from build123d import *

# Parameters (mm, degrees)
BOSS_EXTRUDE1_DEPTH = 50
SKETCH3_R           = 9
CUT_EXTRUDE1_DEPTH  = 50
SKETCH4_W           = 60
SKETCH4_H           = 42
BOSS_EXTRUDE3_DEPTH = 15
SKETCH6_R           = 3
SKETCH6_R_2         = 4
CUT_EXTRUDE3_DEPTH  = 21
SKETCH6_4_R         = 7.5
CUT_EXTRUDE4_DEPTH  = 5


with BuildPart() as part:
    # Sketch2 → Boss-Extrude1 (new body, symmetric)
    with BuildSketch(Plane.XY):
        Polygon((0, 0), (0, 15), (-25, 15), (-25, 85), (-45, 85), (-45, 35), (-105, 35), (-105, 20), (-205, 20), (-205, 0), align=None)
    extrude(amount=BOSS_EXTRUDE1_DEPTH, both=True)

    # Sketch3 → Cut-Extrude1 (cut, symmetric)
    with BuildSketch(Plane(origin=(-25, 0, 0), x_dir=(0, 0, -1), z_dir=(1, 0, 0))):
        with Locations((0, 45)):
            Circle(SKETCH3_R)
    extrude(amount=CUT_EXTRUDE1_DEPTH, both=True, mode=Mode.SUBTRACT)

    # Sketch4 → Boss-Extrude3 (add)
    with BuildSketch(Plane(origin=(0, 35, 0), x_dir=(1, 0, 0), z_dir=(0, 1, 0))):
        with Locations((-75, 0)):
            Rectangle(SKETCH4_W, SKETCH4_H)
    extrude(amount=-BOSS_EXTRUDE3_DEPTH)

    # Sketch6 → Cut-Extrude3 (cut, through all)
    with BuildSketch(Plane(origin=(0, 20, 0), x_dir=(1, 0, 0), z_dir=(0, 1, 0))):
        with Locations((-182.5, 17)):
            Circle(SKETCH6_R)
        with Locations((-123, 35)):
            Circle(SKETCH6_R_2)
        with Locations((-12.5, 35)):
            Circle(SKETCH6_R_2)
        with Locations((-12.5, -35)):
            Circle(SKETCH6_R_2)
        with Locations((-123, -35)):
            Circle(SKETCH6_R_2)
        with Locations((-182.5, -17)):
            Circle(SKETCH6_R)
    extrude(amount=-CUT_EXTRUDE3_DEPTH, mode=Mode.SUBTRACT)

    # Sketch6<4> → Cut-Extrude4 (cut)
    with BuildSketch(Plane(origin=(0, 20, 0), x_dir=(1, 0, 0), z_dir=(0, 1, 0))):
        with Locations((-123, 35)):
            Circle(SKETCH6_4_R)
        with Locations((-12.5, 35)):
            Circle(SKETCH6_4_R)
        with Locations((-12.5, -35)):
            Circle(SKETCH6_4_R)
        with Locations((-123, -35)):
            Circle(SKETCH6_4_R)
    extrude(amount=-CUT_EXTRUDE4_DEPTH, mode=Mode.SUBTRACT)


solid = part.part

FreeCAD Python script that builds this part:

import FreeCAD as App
import Part
import Sketcher

V = App.Vector
Q = App.Units.Quantity

doc = App.newDocument("Part")
body = doc.addObject("PartDesign::Body", "Body")

sketch1 = body.newObject("Sketcher::SketchObject", "Sketch")
sketch1.AttachmentSupport = (doc.getObject("XY_Plane"), [""])
sketch1.MapMode = "FlatFace"
sketch1.addGeometry(Part.LineSegment(V(0, 0, 0), V(0, 15, 0)), False)
sketch1.addGeometry(Part.LineSegment(V(0, 15, 0), V(-25, 15, 0)), False)
sketch1.addGeometry(Part.LineSegment(V(-25, 15, 0), V(-25, 85, 0)), False)
sketch1.addGeometry(Part.LineSegment(V(-25, 85, 0), V(-45, 85, 0)), False)
sketch1.addGeometry(Part.LineSegment(V(-45, 85, 0), V(-45, 35, 0)), False)
sketch1.addGeometry(Part.LineSegment(V(-45, 35, 0), V(-105, 35, 0)), False)
sketch1.addGeometry(Part.LineSegment(V(-105, 35, 0), V(-105, 20, 0)), False)
sketch1.addGeometry(Part.LineSegment(V(-105, 20, 0), V(-205, 20, 0)), False)
sketch1.addGeometry(Part.LineSegment(V(-205, 20, 0), V(-205, 0, 0)), False)
sketch1.addGeometry(Part.LineSegment(V(-205, 0, 0), V(0, 0, 0)), False)
sketch1.addConstraint(Sketcher.Constraint("Coincident", 0, 2, 1, 1))
sketch1.addConstraint(Sketcher.Constraint("Coincident", 1, 2, 2, 1))
sketch1.addConstraint(Sketcher.Constraint("Coincident", 2, 2, 3, 1))
sketch1.addConstraint(Sketcher.Constraint("Coincident", 3, 2, 4, 1))
sketch1.addConstraint(Sketcher.Constraint("Coincident", 4, 2, 5, 1))
sketch1.addConstraint(Sketcher.Constraint("Coincident", 5, 2, 6, 1))
sketch1.addConstraint(Sketcher.Constraint("Coincident", 6, 2, 7, 1))
sketch1.addConstraint(Sketcher.Constraint("Coincident", 7, 2, 8, 1))
sketch1.addConstraint(Sketcher.Constraint("Coincident", 8, 2, 9, 1))
sketch1.addConstraint(Sketcher.Constraint("Coincident", 9, 2, 0, 1))
sketch1.addConstraint(Sketcher.Constraint("Vertical", 0))
sketch1.addConstraint(Sketcher.Constraint("Horizontal", 1))
sketch1.addConstraint(Sketcher.Constraint("Vertical", 2))
sketch1.addConstraint(Sketcher.Constraint("Horizontal", 3))
sketch1.addConstraint(Sketcher.Constraint("Vertical", 4))
sketch1.addConstraint(Sketcher.Constraint("Horizontal", 5))
sketch1.addConstraint(Sketcher.Constraint("Vertical", 6))
sketch1.addConstraint(Sketcher.Constraint("Horizontal", 7))
sketch1.addConstraint(Sketcher.Constraint("Vertical", 8))
sketch1.addConstraint(Sketcher.Constraint("Horizontal", 9))
sketch1.addConstraint(Sketcher.Constraint("Coincident", 9, 2, -1, 1))
sketch1.addConstraint(Sketcher.Constraint("Equal", 0, 6))
sketch1.addConstraint(Sketcher.Constraint("Equal", 3, 8))
sketch1.addConstraint(Sketcher.Constraint("DistanceX", 1, 2, 1, 1, Q("25 mm")))
sketch1.addConstraint(Sketcher.Constraint("DistanceX", 3, 2, 3, 1, Q("20 mm")))
sketch1.addConstraint(Sketcher.Constraint("DistanceX", 5, 2, 5, 1, Q("60 mm")))
sketch1.addConstraint(Sketcher.Constraint("DistanceX", 7, 2, 7, 1, Q("100 mm")))
sketch1.addConstraint(Sketcher.Constraint("DistanceY", 0, 1, 0, 2, Q("15 mm")))
sketch1.addConstraint(Sketcher.Constraint("DistanceY", 2, 1, 2, 2, Q("70 mm")))
pad1 = body.newObject("PartDesign::Pad", "Pad")
pad1.Profile = sketch1
pad1.Length = 100
pad1.Midplane = True

sketch2 = body.newObject("Sketcher::SketchObject", "Sketch001")
sketch2.AttachmentSupport = (doc.getObject("YZ_Plane"), [""])
sketch2.MapMode = "FlatFace"
sketch2.AttachmentOffset = App.Placement(V(0, 0, -25), App.Rotation())
sketch2.addGeometry(Part.Circle(V(45, 0, 0), V(0, 0, 1), 9), False)
sketch2.addConstraint(Sketcher.Constraint("PointOnObject", 0, 3, -1))
sketch2.addConstraint(Sketcher.Constraint("Diameter", 0, Q("18 mm")))
sketch2.addConstraint(Sketcher.Constraint("DistanceX", -1, 1, 0, 3, Q("45 mm")))
pocket1 = body.newObject("PartDesign::Pocket", "Pocket")
pocket1.Profile = sketch2
pocket1.Length = 100
pocket1.Midplane = True

sketch3 = body.newObject("Sketcher::SketchObject", "Sketch002")
sketch3.AttachmentSupport = (doc.getObject("XZ_Plane"), [""])
sketch3.MapMode = "FlatFace"
sketch3.AttachmentOffset = App.Placement(V(0, 0, -35), App.Rotation())
sketch3.addGeometry(Part.LineSegment(V(-105, -21, 0), V(-105, 21, 0)), False)
sketch3.addGeometry(Part.LineSegment(V(-105, 21, 0), V(-45, 21, 0)), False)
sketch3.addGeometry(Part.LineSegment(V(-45, 21, 0), V(-45, -21, 0)), False)
sketch3.addGeometry(Part.LineSegment(V(-45, -21, 0), V(-105, -21, 0)), False)
sketch3.addConstraint(Sketcher.Constraint("Coincident", 0, 2, 1, 1))
sketch3.addConstraint(Sketcher.Constraint("Coincident", 1, 2, 2, 1))
sketch3.addConstraint(Sketcher.Constraint("Coincident", 2, 2, 3, 1))
sketch3.addConstraint(Sketcher.Constraint("Coincident", 3, 2, 0, 1))
sketch3.addConstraint(Sketcher.Constraint("Vertical", 0))
sketch3.addConstraint(Sketcher.Constraint("Horizontal", 1))
sketch3.addConstraint(Sketcher.Constraint("Vertical", 2))
sketch3.addConstraint(Sketcher.Constraint("Horizontal", 3))
sketch3.addConstraint(Sketcher.Constraint("DistanceX", 1, 1, 1, 2, Q("60 mm")))
sketch3.addConstraint(Sketcher.Constraint("DistanceY", 0, 1, 0, 2, Q("42 mm")))
sketch3.addConstraint(Sketcher.Constraint("DistanceX", 0, 2, -1, 1, Q("105 mm")))
sketch3.addConstraint(Sketcher.Constraint("DistanceY", -1, 1, 0, 2, Q("21 mm")))
pad2 = body.newObject("PartDesign::Pad", "Pad001")
pad2.Profile = sketch3
pad2.Length = 15

sketch4 = body.newObject("Sketcher::SketchObject", "Sketch003")
sketch4.AttachmentSupport = (doc.getObject("XZ_Plane"), [""])
sketch4.MapMode = "FlatFace"
sketch4.AttachmentOffset = App.Placement(V(0, 0, -20), App.Rotation())
sketch4.addGeometry(Part.Circle(V(-182.5, -17, 0), V(0, 0, 1), 3), False)
sketch4.addGeometry(Part.Circle(V(-123, -35, 0), V(0, 0, 1), 4), False)
sketch4.addGeometry(Part.Circle(V(-12.5, -35, 0), V(0, 0, 1), 4), False)
sketch4.addGeometry(Part.Circle(V(-12.5, 35, 0), V(0, 0, 1), 4), False)
sketch4.addGeometry(Part.Circle(V(-123, 35, 0), V(0, 0, 1), 4), False)
sketch4.addGeometry(Part.Circle(V(-182.5, 17, 0), V(0, 0, 1), 3), False)
sketch4.addConstraint(Sketcher.Constraint("Equal", 1, 2))
sketch4.addConstraint(Sketcher.Constraint("Equal", 2, 3))
sketch4.addConstraint(Sketcher.Constraint("Equal", 3, 4))
sketch4.addConstraint(Sketcher.Constraint("Equal", 0, 5))
sketch4.addConstraint(Sketcher.Constraint("Symmetric", 2, 3, 3, 3, -1))
sketch4.addConstraint(Sketcher.Constraint("Symmetric", 1, 3, 4, 3, -1))
sketch4.addConstraint(Sketcher.Constraint("Symmetric", 0, 3, 5, 3, -1))
sketch4.addConstraint(Sketcher.Constraint("Horizontal", 1, 3, 2, 3))
sketch4.addConstraint(Sketcher.Constraint("Diameter", 0, Q("6 mm")))
sketch4.addConstraint(Sketcher.Constraint("Diameter", 1, Q("8 mm")))
sketch4.addConstraint(Sketcher.Constraint("DistanceY", 0, 3, -1, 1, Q("17 mm")))
sketch4.addConstraint(Sketcher.Constraint("DistanceX", 1, 3, -1, 1, Q("123 mm")))
sketch4.addConstraint(Sketcher.Constraint("DistanceY", 1, 3, -1, 1, Q("35 mm")))
sketch4.addConstraint(Sketcher.Constraint("DistanceX", 0, 3, 2, 3, Q("170 mm")))
sketch4.addConstraint(Sketcher.Constraint("DistanceX", 0, 3, -1, 1, Q("182.5 mm")))
pocket2 = body.newObject("PartDesign::Pocket", "Pocket001")
pocket2.Profile = sketch4
pocket2.Type = "ThroughAll"
pocket2.Reversed = True

sketch5 = body.newObject("Sketcher::SketchObject", "Sketch004")
sketch5.AttachmentSupport = (doc.getObject("XZ_Plane"), [""])
sketch5.MapMode = "FlatFace"
sketch5.AttachmentOffset = App.Placement(V(0, 0, -20), App.Rotation())
sketch5.addGeometry(Part.Circle(V(-123, -35, 0), V(0, 0, 1), 8), False)
sketch5.addGeometry(Part.Circle(V(-12, -35, 0), V(0, 0, 1), 8), False)
sketch5.addGeometry(Part.Circle(V(-12, 35, 0), V(0, 0, 1), 8), False)
sketch5.addGeometry(Part.Circle(V(-123, 35, 0), V(0, 0, 1), 8), False)
sketch5.addConstraint(Sketcher.Constraint("Equal", 0, 1))
sketch5.addConstraint(Sketcher.Constraint("Equal", 1, 2))
sketch5.addConstraint(Sketcher.Constraint("Equal", 2, 3))
sketch5.addConstraint(Sketcher.Constraint("Symmetric", 1, 3, 2, 3, -1))
sketch5.addConstraint(Sketcher.Constraint("Symmetric", 0, 3, 3, 3, -1))
sketch5.addConstraint(Sketcher.Constraint("Horizontal", 0, 3, 1, 3))
sketch5.addConstraint(Sketcher.Constraint("Diameter", 0, Q("15 mm")))
sketch5.addConstraint(Sketcher.Constraint("DistanceX", 0, 3, -1, 1, Q("123 mm")))
sketch5.addConstraint(Sketcher.Constraint("DistanceY", 0, 3, -1, 1, Q("35 mm")))
sketch5.addConstraint(Sketcher.Constraint("DistanceX", 1, 3, -1, 1, Q("12.5 mm")))
pocket3 = body.newObject("PartDesign::Pocket", "Pocket002")
pocket3.Profile = sketch5
pocket3.Length = 5
pocket3.Reversed = True

doc.recompute()
